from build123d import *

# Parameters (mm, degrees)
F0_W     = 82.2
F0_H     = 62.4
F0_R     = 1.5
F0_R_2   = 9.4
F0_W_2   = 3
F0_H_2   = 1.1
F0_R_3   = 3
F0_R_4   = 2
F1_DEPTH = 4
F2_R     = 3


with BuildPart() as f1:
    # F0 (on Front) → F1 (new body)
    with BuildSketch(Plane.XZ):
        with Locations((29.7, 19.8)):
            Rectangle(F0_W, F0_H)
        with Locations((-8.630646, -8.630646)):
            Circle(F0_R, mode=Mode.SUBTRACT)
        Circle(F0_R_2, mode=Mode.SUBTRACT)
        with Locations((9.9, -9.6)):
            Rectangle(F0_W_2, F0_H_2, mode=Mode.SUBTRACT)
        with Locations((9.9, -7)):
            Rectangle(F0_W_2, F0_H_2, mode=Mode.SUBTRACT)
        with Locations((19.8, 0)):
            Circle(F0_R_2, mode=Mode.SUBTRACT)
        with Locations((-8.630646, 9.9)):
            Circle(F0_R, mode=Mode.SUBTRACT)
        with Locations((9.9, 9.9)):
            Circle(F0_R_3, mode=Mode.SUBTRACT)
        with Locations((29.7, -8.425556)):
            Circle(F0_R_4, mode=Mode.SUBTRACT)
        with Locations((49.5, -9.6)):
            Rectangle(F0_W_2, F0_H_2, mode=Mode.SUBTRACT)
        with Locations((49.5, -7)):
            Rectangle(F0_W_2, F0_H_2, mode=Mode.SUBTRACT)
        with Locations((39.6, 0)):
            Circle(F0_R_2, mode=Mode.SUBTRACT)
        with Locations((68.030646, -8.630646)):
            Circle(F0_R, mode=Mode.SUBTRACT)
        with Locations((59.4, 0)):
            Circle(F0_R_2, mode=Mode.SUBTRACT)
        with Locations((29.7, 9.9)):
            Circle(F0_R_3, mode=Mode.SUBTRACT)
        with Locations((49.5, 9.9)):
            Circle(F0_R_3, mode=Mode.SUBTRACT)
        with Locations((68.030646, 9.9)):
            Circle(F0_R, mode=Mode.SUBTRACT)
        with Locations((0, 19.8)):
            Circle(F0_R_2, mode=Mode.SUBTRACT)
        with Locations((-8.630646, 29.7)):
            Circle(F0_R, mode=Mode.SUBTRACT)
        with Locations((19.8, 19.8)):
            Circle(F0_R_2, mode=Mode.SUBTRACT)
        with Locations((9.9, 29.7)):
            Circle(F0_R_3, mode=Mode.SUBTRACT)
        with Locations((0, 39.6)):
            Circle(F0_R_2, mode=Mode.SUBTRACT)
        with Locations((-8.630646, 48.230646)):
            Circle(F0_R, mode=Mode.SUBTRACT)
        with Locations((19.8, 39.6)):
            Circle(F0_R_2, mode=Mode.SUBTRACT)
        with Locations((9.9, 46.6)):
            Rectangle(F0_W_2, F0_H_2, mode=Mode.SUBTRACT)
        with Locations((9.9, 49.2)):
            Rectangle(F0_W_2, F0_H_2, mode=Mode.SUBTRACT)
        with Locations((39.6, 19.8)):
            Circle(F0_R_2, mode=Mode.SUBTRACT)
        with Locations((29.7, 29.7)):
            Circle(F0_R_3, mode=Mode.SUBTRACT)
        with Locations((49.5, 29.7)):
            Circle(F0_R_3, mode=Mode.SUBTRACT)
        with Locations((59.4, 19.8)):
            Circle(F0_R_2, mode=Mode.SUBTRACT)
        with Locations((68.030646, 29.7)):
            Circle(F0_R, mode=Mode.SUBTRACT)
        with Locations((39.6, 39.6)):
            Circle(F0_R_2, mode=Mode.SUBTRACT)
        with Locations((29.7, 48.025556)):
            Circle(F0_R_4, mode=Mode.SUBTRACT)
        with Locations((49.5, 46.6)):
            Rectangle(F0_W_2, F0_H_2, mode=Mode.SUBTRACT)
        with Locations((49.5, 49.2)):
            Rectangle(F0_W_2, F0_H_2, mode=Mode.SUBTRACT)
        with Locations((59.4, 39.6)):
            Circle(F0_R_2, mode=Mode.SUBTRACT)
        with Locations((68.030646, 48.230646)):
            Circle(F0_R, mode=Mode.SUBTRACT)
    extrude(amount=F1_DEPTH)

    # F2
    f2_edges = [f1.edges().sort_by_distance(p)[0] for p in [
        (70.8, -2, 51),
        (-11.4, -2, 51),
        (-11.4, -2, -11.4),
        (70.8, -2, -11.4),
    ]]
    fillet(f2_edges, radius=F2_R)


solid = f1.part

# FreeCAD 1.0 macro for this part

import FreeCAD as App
import Part
import Sketcher
Q = App.Units.Quantity


def edges_at(feature, points):
    """Names of the edges that pass closest to the given points."""
    edges = feature.Shape.Edges
    near = lambda p: min(range(len(edges)), key=lambda i: edges[i].distToShape(Part.Vertex(*p))[0])
    return sorted({f"Edge{near(p) + 1}" for p in points})


def add_polygon(sketch, points):
    """Adds a closed chain of lines whose ends are joined by coincident constraints."""
    first, n = sketch.GeometryCount, len(points)
    for a, b in zip(points, points[1:] + points[:1]):
        sketch.addGeometry(Part.LineSegment(App.Vector(*a, 0), App.Vector(*b, 0)), False)
    for i in range(n):
        sketch.addConstraint(Sketcher.Constraint("Coincident", first + i, 2, first + (i + 1) % n, 1))

doc = App.newDocument("Part")
params = doc.addObject("Spreadsheet::Sheet", "Params")
for row, (alias, value) in enumerate([
    ("sketch1_diameter", "3 mm"),
    ("sketch1_diameter2", "4 mm"),
    ("sketch1_diameter3", "6 mm"),
    ("sketch1_diameter4", "18.8 mm"),
    ("sketch1_width", "3 mm"),
    ("pad1_length", "4 mm"),
    ("fillet_radius", "3 mm"),
], start=1):
    params.set(f"A{row}", alias)
    params.set(f"B{row}", "=" + value)
    params.setAlias(f"B{row}", alias)

body = doc.addObject("PartDesign::Body", "Body")

# Sketch on XZ plane
sketch1 = body.newObject("Sketcher::SketchObject", "Sketch")
sketch1.AttachmentSupport = (doc.getObject("XZ_Plane"), [""])
sketch1.MapMode = "FlatFace"
add_polygon(sketch1, [(-11.4, 51), (-11.4, -11.4), (70.8, -11.4), (70.8, 51)])  # lines 0-3
sketch1.addGeometry(Part.Circle(App.Vector(-8.630646, -8.630646, 0), App.Vector(0, 0, 1), 1.5), False)  # 4
sketch1.addGeometry(Part.Circle(App.Vector(0, 0, 0), App.Vector(0, 0, 1), 9.4), False)  # 5
add_polygon(sketch1, [(11.4, -10.15), (8.4, -10.15), (8.4, -9.05), (11.4, -9.05)])  # lines 6-9
add_polygon(sketch1, [(11.4, -7.55), (8.4, -7.55), (8.4, -6.45), (11.4, -6.45)])  # lines 10-13
sketch1.addGeometry(Part.Circle(App.Vector(29.7, -8.425556, 0), App.Vector(0, 0, 1), 2), False)  # 14
sketch1.addGeometry(Part.Circle(App.Vector(19.8, 0, 0), App.Vector(0, 0, 1), 9.4), False)  # 15
sketch1.addGeometry(Part.Circle(App.Vector(-8.630646, 9.9, 0), App.Vector(0, 0, 1), 1.5), False)  # 16
sketch1.addGeometry(Part.Circle(App.Vector(9.9, 9.9, 0), App.Vector(0, 0, 1), 3), False)  # 17
sketch1.addGeometry(Part.Circle(App.Vector(29.7, 9.9, 0), App.Vector(0, 0, 1), 3), False)  # 18
add_polygon(sketch1, [(51, -10.15), (48, -10.15), (48, -9.05), (51, -9.05)])  # lines 19-22
add_polygon(sketch1, [(51, -7.55), (48, -7.55), (48, -6.45), (51, -6.45)])  # lines 23-26
sketch1.addGeometry(Part.Circle(App.Vector(39.6, 0, 0), App.Vector(0, 0, 1), 9.4), False)  # 27
sketch1.addGeometry(Part.Circle(App.Vector(68.030646, -8.630646, 0), App.Vector(0, 0, 1), 1.5), False)  # 28
sketch1.addGeometry(Part.Circle(App.Vector(59.4, 0, 0), App.Vector(0, 0, 1), 9.4), False)  # 29
sketch1.addGeometry(Part.Circle(App.Vector(49.5, 9.9, 0), App.Vector(0, 0, 1), 3), False)  # 30
sketch1.addGeometry(Part.Circle(App.Vector(68.030646, 9.9, 0), App.Vector(0, 0, 1), 1.5), False)  # 31
sketch1.addGeometry(Part.Circle(App.Vector(0, 19.8, 0), App.Vector(0, 0, 1), 9.4), False)  # 32
sketch1.addGeometry(Part.Circle(App.Vector(-8.630646, 29.7, 0), App.Vector(0, 0, 1), 1.5), False)  # 33
sketch1.addGeometry(Part.Circle(App.Vector(19.8, 19.8, 0), App.Vector(0, 0, 1), 9.4), False)  # 34
sketch1.addGeometry(Part.Circle(App.Vector(9.9, 29.7, 0), App.Vector(0, 0, 1), 3), False)  # 35
sketch1.addGeometry(Part.Circle(App.Vector(29.7, 29.7, 0), App.Vector(0, 0, 1), 3), False)  # 36
sketch1.addGeometry(Part.Circle(App.Vector(0, 39.6, 0), App.Vector(0, 0, 1), 9.4), False)  # 37
sketch1.addGeometry(Part.Circle(App.Vector(-8.630646, 48.230646, 0), App.Vector(0, 0, 1), 1.5), False)  # 38
sketch1.addGeometry(Part.Circle(App.Vector(19.8, 39.6, 0), App.Vector(0, 0, 1), 9.4), False)  # 39
add_polygon(sketch1, [(11.4, 46.05), (8.4, 46.05), (8.4, 47.15), (11.4, 47.15)])  # lines 40-43
add_polygon(sketch1, [(11.4, 48.65), (8.4, 48.65), (8.4, 49.75), (11.4, 49.75)])  # lines 44-47
sketch1.addGeometry(Part.Circle(App.Vector(29.7, 48.025556, 0), App.Vector(0, 0, 1), 2), False)  # 48
sketch1.addGeometry(Part.Circle(App.Vector(39.6, 19.8, 0), App.Vector(0, 0, 1), 9.4), False)  # 49
sketch1.addGeometry(Part.Circle(App.Vector(49.5, 29.7, 0), App.Vector(0, 0, 1), 3), False)  # 50
sketch1.addGeometry(Part.Circle(App.Vector(59.4, 19.8, 0), App.Vector(0, 0, 1), 9.4), False)  # 51
sketch1.addGeometry(Part.Circle(App.Vector(68.030646, 29.7, 0), App.Vector(0, 0, 1), 1.5), False)  # 52
sketch1.addGeometry(Part.Circle(App.Vector(39.6, 39.6, 0), App.Vector(0, 0, 1), 9.4), False)  # 53
add_polygon(sketch1, [(51, 46.05), (48, 46.05), (48, 47.15), (51, 47.15)])  # lines 54-57
add_polygon(sketch1, [(51, 48.65), (48, 48.65), (48, 49.75), (51, 49.75)])  # lines 58-61
sketch1.addGeometry(Part.Circle(App.Vector(59.4, 39.6, 0), App.Vector(0, 0, 1), 9.4), False)  # 62
sketch1.addGeometry(Part.Circle(App.Vector(68.030646, 48.230646, 0), App.Vector(0, 0, 1), 1.5), False)  # 63
sketch1.addConstraint([
    Sketcher.Constraint("Vertical", 0),
    Sketcher.Constraint("Horizontal", 1),
    Sketcher.Constraint("Vertical", 2),
    Sketcher.Constraint("Horizontal", 3),
    Sketcher.Constraint("Horizontal", 6),
    Sketcher.Constraint("Vertical", 7),
    Sketcher.Constraint("Horizontal", 8),
    Sketcher.Constraint("Vertical", 9),
    Sketcher.Constraint("Horizontal", 10),
    Sketcher.Constraint("Vertical", 11),
    Sketcher.Constraint("Horizontal", 12),
    Sketcher.Constraint("Vertical", 13),
    Sketcher.Constraint("Horizontal", 19),
    Sketcher.Constraint("Vertical", 20),
    Sketcher.Constraint("Horizontal", 21),
    Sketcher.Constraint("Vertical", 22),
    Sketcher.Constraint("Horizontal", 23),
    Sketcher.Constraint("Vertical", 24),
    Sketcher.Constraint("Horizontal", 25),
    Sketcher.Constraint("Vertical", 26),
    Sketcher.Constraint("Horizontal", 40),
    Sketcher.Constraint("Vertical", 41),
    Sketcher.Constraint("Horizontal", 42),
    Sketcher.Constraint("Vertical", 43),
    Sketcher.Constraint("Horizontal", 44),
    Sketcher.Constraint("Vertical", 45),
    Sketcher.Constraint("Horizontal", 46),
    Sketcher.Constraint("Vertical", 47),
    Sketcher.Constraint("Horizontal", 54),
    Sketcher.Constraint("Vertical", 55),
    Sketcher.Constraint("Horizontal", 56),
    Sketcher.Constraint("Vertical", 57),
    Sketcher.Constraint("Horizontal", 58),
    Sketcher.Constraint("Vertical", 59),
    Sketcher.Constraint("Horizontal", 60),
    Sketcher.Constraint("Vertical", 61),
    Sketcher.Constraint("Coincident", 5, 3, -1, 1),
    Sketcher.Constraint("Equal", 5, 15),
    Sketcher.Constraint("Equal", 4, 16),
    Sketcher.Constraint("Equal", 17, 18),
    Sketcher.Constraint("Equal", 15, 27),
    Sketcher.Constraint("Equal", 16, 28),
    Sketcher.Constraint("Equal", 27, 29),
    Sketcher.Constraint("Equal", 18, 30),
    Sketcher.Constraint("Equal", 28, 31),
    Sketcher.Constraint("Equal", 29, 32),
    Sketcher.Constraint("Equal", 31, 33),
    Sketcher.Constraint("Equal", 32, 34),
    Sketcher.Constraint("Equal", 30, 35),
    Sketcher.Constraint("Equal", 35, 36),
    Sketcher.Constraint("Equal", 34, 37),
    Sketcher.Constraint("Equal", 33, 38),
    Sketcher.Constraint("Equal", 37, 39),
    Sketcher.Constraint("Equal", 14, 48),
    Sketcher.Constraint("Equal", 39, 49),
    Sketcher.Constraint("Equal", 36, 50),
    Sketcher.Constraint("Equal", 49, 51),
    Sketcher.Constraint("Equal", 38, 52),
    Sketcher.Constraint("Equal", 51, 53),
    Sketcher.Constraint("Equal", 53, 62),
    Sketcher.Constraint("Equal", 52, 63),
    Sketcher.Constraint("PointOnObject", 15, 3, -1),
    Sketcher.Constraint("PointOnObject", 27, 3, -1),
    Sketcher.Constraint("PointOnObject", 29, 3, -1),
    Sketcher.Constraint("PointOnObject", 32, 3, -2),
    Sketcher.Constraint("PointOnObject", 37, 3, -2),
    Sketcher.Constraint("Horizontal", 16, 3, 17, 3),
    Sketcher.Constraint("Horizontal", 17, 3, 18, 3),
    Sketcher.Constraint("Horizontal", 4, 3, 28, 3),
    Sketcher.Constraint("Horizontal", 18, 3, 30, 3),
    Sketcher.Constraint("Horizontal", 30, 3, 31, 3),
    Sketcher.Constraint("Horizontal", 32, 3, 34, 3),
    Sketcher.Constraint("Horizontal", 33, 3, 35, 3),
    Sketcher.Constraint("Horizontal", 35, 3, 36, 3),
    Sketcher.Constraint("Horizontal", 37, 3, 39, 3),
    Sketcher.Constraint("Horizontal", 34, 3, 49, 3),
    Sketcher.Constraint("Horizontal", 36, 3, 50, 3),
    Sketcher.Constraint("Horizontal", 49, 3, 51, 3),
    Sketcher.Constraint("Horizontal", 50, 3, 52, 3),
    Sketcher.Constraint("Horizontal", 39, 3, 53, 3),
    Sketcher.Constraint("Horizontal", 53, 3, 62, 3),
    Sketcher.Constraint("Horizontal", 38, 3, 63, 3),
    Sketcher.Constraint("Horizontal", 9, 2, 19, 2),
    Sketcher.Constraint("Horizontal", 8, 2, 20, 2),
    Sketcher.Constraint("Horizontal", 13, 2, 23, 2),
    Sketcher.Constraint("Horizontal", 12, 2, 24, 2),
    Sketcher.Constraint("Horizontal", 43, 2, 54, 2),
    Sketcher.Constraint("Horizontal", 42, 2, 55, 2),
    Sketcher.Constraint("Horizontal", 47, 2, 58, 2),
    Sketcher.Constraint("Horizontal", 46, 2, 59, 2),
    Sketcher.Constraint("Vertical", 4, 3, 16, 3),
    Sketcher.Constraint("Vertical", 14, 3, 18, 3),
    Sketcher.Constraint("Vertical", 28, 3, 31, 3),
    Sketcher.Constraint("Vertical", 16, 3, 33, 3),
    Sketcher.Constraint("Vertical", 15, 3, 34, 3),
    Sketcher.Constraint("Vertical", 17, 3, 35, 3),
    Sketcher.Constraint("Vertical", 18, 3, 36, 3),
    Sketcher.Constraint("Vertical", 33, 3, 38, 3),
    Sketcher.Constraint("Vertical", 34, 3, 39, 3),
    Sketcher.Constraint("Vertical", 36, 3, 48, 3),
    Sketcher.Constraint("Vertical", 27, 3, 49, 3),
    Sketcher.Constraint("Vertical", 30, 3, 50, 3),
    Sketcher.Constraint("Vertical", 29, 3, 51, 3),
    Sketcher.Constraint("Vertical", 31, 3, 52, 3),
    Sketcher.Constraint("Vertical", 49, 3, 53, 3),
    Sketcher.Constraint("Vertical", 51, 3, 62, 3),
    Sketcher.Constraint("Vertical", 52, 3, 63, 3),
    Sketcher.Constraint("Vertical", 7, 2, 10, 2),
    Sketcher.Constraint("Vertical", 9, 2, 12, 2),
    Sketcher.Constraint("Vertical", 20, 2, 23, 2),
    Sketcher.Constraint("Vertical", 22, 2, 25, 2),
    Sketcher.Constraint("Vertical", 11, 2, 40, 2),
    Sketcher.Constraint("Vertical", 13, 2, 42, 2),
    Sketcher.Constraint("Vertical", 41, 2, 44, 2),
    Sketcher.Constraint("Vertical", 43, 2, 46, 2),
    Sketcher.Constraint("Vertical", 24, 2, 54, 2),
    Sketcher.Constraint("Vertical", 26, 2, 56, 2),
    Sketcher.Constraint("Vertical", 55, 2, 58, 2),
    Sketcher.Constraint("Vertical", 57, 2, 60, 2),
    Sketcher.Constraint("Equal", 12, 19),
    Sketcher.Constraint("Equal", 9, 11),
    Sketcher.Constraint("Equal", 26, 41),
    Sketcher.Constraint("Equal", 43, 45),
    Sketcher.Constraint("Diameter", 4, Q("3 mm")),
    Sketcher.Constraint("Diameter", 14, Q("4 mm")),
    Sketcher.Constraint("Diameter", 17, Q("6 mm")),
    Sketcher.Constraint("Diameter", 5, Q("18.8 mm")),
    Sketcher.Constraint("DistanceX", 6, 2, 6, 1, Q("3 mm")),
    Sketcher.Constraint("DistanceX", 1, 1, 1, 2, Q("82.2 mm")),
    Sketcher.Constraint("DistanceY", 0, 2, 0, 1, Q("62.4 mm")),
    Sketcher.Constraint("DistanceY", 7, 1, 7, 2, Q("1.1 mm")),
    Sketcher.Constraint("DistanceY", -1, 1, 2, 2, Q("51 mm")),
    Sketcher.Constraint("DistanceX", -1, 1, 19, 2, Q("48 mm")),
    Sketcher.Constraint("DistanceX", -1, 1, 14, 3, Q("29.7 mm")),
    Sketcher.Constraint("DistanceX", -1, 1, 15, 3, Q("19.8 mm")),
    Sketcher.Constraint("DistanceY", -1, 1, 16, 3, Q("9.9 mm")),
    Sketcher.Constraint("DistanceX", -1, 1, 17, 3, Q("9.9 mm")),
    Sketcher.Constraint("DistanceX", -1, 1, 27, 3, Q("39.6 mm")),
    Sketcher.Constraint("DistanceX", -1, 1, 29, 3, Q("59.4 mm")),
    Sketcher.Constraint("DistanceX", -1, 1, 30, 3, Q("49.5 mm")),
    Sketcher.Constraint("DistanceY", -1, 1, 32, 3, Q("19.8 mm")),
    Sketcher.Constraint("DistanceY", -1, 1, 33, 3, Q("29.7 mm")),
    Sketcher.Constraint("DistanceY", -1, 1, 37, 3, Q("39.6 mm")),
    Sketcher.Constraint("DistanceX", 0, 2, -1, 1, Q("11.4 mm")),
    Sketcher.Constraint("DistanceX", -1, 1, 6, 2, Q("8.4 mm")),
    Sketcher.Constraint("DistanceY", 6, 2, -1, 1, Q("10.15 mm")),
    Sketcher.Constraint("DistanceY", 10, 2, -1, 1, Q("7.55 mm")),
    Sketcher.Constraint("DistanceY", -1, 1, 40, 2, Q("46.05 mm")),
    Sketcher.Constraint("DistanceY", -1, 1, 44, 2, Q("48.65 mm")),
    Sketcher.Constraint("DistanceX", 4, 3, -1, 1, Q("8.630646 mm")),
    Sketcher.Constraint("DistanceY", 4, 3, -1, 1, Q("8.630646 mm")),
    Sketcher.Constraint("DistanceY", 14, 3, -1, 1, Q("8.425556 mm")),
    Sketcher.Constraint("DistanceX", -1, 1, 28, 3, Q("68.030646 mm")),
    Sketcher.Constraint("DistanceY", -1, 1, 38, 3, Q("48.230646 mm")),
    Sketcher.Constraint("DistanceY", -1, 1, 48, 3, Q("48.025556 mm")),
])
sketch1.setExpression("Constraints[159]", "Params.sketch1_diameter")
sketch1.setExpression("Constraints[160]", "Params.sketch1_diameter2")
sketch1.setExpression("Constraints[161]", "Params.sketch1_diameter3")
sketch1.setExpression("Constraints[162]", "Params.sketch1_diameter4")
sketch1.setExpression("Constraints[163]", "Params.sketch1_width")
pad1 = body.newObject("PartDesign::Pad", "Pad")
pad1.Profile = sketch1
pad1.setExpression("Length", "Params.pad1_length")
doc.recompute()

fillet = body.newObject("PartDesign::Fillet", "Fillet")
fillet.Base = (pad1, edges_at(pad1, [
    (70.8, -2, 51),
    (-11.4, -2, 51),
    (-11.4, -2, -11.4),
    (70.8, -2, -11.4),
]))
fillet.setExpression("Radius", "Params.fillet_radius")

doc.recompute()
